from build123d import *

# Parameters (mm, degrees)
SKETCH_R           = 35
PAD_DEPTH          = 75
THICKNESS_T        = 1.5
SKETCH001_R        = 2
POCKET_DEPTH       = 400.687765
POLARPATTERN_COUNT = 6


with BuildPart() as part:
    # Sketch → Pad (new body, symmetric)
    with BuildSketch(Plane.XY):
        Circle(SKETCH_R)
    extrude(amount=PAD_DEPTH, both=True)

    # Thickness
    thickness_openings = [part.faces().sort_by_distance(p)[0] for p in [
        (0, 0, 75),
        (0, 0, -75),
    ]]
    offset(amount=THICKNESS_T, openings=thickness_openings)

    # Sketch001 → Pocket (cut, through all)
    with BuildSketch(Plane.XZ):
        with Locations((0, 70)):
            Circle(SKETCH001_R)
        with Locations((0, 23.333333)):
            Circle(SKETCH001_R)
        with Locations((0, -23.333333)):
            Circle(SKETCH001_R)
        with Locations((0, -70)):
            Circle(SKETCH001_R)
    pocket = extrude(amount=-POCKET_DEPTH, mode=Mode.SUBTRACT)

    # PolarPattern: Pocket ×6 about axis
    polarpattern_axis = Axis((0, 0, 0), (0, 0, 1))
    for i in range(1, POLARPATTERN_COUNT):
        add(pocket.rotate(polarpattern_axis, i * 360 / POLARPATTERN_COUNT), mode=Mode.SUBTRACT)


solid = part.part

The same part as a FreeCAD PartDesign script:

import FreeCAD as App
import Part
import Sketcher

V = App.Vector


def faces_at(feature, points):
    """Names of the faces that lie closest to the given points."""
    faces = feature.Shape.Faces
    near = lambda p: min(range(len(faces)), key=lambda i: faces[i].distToShape(Part.Vertex(*p))[0])
    return sorted({f"Face{near(p) + 1}" for p in points})

doc = App.newDocument("Part")
params = doc.addObject("Spreadsheet::Sheet", "Params")
for row, (alias, value) in enumerate([
    ("sketch1_diameter", "70 mm"),
    ("pad1_length", "150 mm"),
    ("thickness_wall", "1.5 mm"),
    ("sketch2_diameter", "4 mm"),
], start=1):
    params.set(f"A{row}", alias)
    params.set(f"B{row}", "=" + value)
    params.setAlias(f"B{row}", alias)

body = doc.addObject("PartDesign::Body", "Body")

# Sketch on XY plane
sketch1 = doc.addObject("Sketcher::SketchObject", "Sketch")
body.addObject(sketch1)
sketch1.AttachmentSupport = (doc.XY_Plane, [""])
sketch1.MapMode = "FlatFace"
sketch1.addGeometry(Part.Circle(V(0, 0, 0), V(0, 0, 1), 35), False)
sketch1.addConstraint(Sketcher.Constraint("Coincident", 0, 3, -1, 1))
sketch1.addConstraint(Sketcher.Constraint("Diameter", 0, 70.0))
sketch1.setExpression("Constraints[1]", "Params.sketch1_diameter")
pad1 = doc.addObject("PartDesign::Pad", "Pad")
body.addObject(pad1)
pad1.Profile = sketch1
pad1.setExpression("Length", "Params.pad1_length")
pad1.Midplane = True
doc.recompute()

thickness = doc.addObject("PartDesign::Thickness", "Thickness")
body.addObject(thickness)
thickness.Base = (pad1, faces_at(pad1, [(0, 0, 75), (0, 0, -75)]))
thickness.setExpression("Value", "Params.thickness_wall")
thickness.Reversed = False
thickness.Join = "Arc"

# Sketch on XZ plane
sketch2 = doc.addObject("Sketcher::SketchObject", "Sketch001")
body.addObject(sketch2)
sketch2.AttachmentSupport = (doc.XZ_Plane, [""])
sketch2.MapMode = "FlatFace"
sketch2.addGeometry(Part.Circle(V(0, 70, 0), V(0, 0, 1), 2), False)
sketch2.addGeometry(Part.Circle(V(0, 23.333333, 0), V(0, 0, 1), 2), False)
sketch2.addGeometry(Part.Circle(V(0, -23.333333, 0), V(0, 0, 1), 2), False)
sketch2.addGeometry(Part.Circle(V(0, -70, 0), V(0, 0, 1), 2), False)
sketch2.addConstraint(Sketcher.Constraint("Equal", 0, 1))
sketch2.addConstraint(Sketcher.Constraint("Equal", 1, 2))
sketch2.addConstraint(Sketcher.Constraint("Equal", 2, 3))
sketch2.addConstraint(Sketcher.Constraint("Symmetric", 1, 3, 2, 3, -1, 1))
sketch2.addConstraint(Sketcher.Constraint("Symmetric", 0, 3, 3, 3, -1, 1))
sketch2.addConstraint(Sketcher.Constraint("PointOnObject", 0, 3, -2))
sketch2.addConstraint(Sketcher.Constraint("PointOnObject", 1, 3, -2))
sketch2.addConstraint(Sketcher.Constraint("Diameter", 0, 4.0))
sketch2.addConstraint(Sketcher.Constraint("DistanceY", -1, 1, 0, 3, 70.0))
sketch2.addConstraint(Sketcher.Constraint("DistanceY", -1, 1, 1, 3, 23.333333))
sketch2.setExpression("Constraints[7]", "Params.sketch2_diameter")
pocket1 = doc.addObject("PartDesign::Pocket", "Pocket")
body.addObject(pocket1)
pocket1.Profile = sketch2
pocket1.Type = "ThroughAll"
doc.recompute()

polarpattern = doc.addObject("PartDesign::PolarPattern", "PolarPattern")
body.addObject(polarpattern)
polarpattern.Originals = [pocket1]
polarpattern.Axis = (doc.Z_Axis, [""])
polarpattern.Angle = 360
polarpattern.Occurrences = 6
body.Tip = polarpattern

doc.recompute()
